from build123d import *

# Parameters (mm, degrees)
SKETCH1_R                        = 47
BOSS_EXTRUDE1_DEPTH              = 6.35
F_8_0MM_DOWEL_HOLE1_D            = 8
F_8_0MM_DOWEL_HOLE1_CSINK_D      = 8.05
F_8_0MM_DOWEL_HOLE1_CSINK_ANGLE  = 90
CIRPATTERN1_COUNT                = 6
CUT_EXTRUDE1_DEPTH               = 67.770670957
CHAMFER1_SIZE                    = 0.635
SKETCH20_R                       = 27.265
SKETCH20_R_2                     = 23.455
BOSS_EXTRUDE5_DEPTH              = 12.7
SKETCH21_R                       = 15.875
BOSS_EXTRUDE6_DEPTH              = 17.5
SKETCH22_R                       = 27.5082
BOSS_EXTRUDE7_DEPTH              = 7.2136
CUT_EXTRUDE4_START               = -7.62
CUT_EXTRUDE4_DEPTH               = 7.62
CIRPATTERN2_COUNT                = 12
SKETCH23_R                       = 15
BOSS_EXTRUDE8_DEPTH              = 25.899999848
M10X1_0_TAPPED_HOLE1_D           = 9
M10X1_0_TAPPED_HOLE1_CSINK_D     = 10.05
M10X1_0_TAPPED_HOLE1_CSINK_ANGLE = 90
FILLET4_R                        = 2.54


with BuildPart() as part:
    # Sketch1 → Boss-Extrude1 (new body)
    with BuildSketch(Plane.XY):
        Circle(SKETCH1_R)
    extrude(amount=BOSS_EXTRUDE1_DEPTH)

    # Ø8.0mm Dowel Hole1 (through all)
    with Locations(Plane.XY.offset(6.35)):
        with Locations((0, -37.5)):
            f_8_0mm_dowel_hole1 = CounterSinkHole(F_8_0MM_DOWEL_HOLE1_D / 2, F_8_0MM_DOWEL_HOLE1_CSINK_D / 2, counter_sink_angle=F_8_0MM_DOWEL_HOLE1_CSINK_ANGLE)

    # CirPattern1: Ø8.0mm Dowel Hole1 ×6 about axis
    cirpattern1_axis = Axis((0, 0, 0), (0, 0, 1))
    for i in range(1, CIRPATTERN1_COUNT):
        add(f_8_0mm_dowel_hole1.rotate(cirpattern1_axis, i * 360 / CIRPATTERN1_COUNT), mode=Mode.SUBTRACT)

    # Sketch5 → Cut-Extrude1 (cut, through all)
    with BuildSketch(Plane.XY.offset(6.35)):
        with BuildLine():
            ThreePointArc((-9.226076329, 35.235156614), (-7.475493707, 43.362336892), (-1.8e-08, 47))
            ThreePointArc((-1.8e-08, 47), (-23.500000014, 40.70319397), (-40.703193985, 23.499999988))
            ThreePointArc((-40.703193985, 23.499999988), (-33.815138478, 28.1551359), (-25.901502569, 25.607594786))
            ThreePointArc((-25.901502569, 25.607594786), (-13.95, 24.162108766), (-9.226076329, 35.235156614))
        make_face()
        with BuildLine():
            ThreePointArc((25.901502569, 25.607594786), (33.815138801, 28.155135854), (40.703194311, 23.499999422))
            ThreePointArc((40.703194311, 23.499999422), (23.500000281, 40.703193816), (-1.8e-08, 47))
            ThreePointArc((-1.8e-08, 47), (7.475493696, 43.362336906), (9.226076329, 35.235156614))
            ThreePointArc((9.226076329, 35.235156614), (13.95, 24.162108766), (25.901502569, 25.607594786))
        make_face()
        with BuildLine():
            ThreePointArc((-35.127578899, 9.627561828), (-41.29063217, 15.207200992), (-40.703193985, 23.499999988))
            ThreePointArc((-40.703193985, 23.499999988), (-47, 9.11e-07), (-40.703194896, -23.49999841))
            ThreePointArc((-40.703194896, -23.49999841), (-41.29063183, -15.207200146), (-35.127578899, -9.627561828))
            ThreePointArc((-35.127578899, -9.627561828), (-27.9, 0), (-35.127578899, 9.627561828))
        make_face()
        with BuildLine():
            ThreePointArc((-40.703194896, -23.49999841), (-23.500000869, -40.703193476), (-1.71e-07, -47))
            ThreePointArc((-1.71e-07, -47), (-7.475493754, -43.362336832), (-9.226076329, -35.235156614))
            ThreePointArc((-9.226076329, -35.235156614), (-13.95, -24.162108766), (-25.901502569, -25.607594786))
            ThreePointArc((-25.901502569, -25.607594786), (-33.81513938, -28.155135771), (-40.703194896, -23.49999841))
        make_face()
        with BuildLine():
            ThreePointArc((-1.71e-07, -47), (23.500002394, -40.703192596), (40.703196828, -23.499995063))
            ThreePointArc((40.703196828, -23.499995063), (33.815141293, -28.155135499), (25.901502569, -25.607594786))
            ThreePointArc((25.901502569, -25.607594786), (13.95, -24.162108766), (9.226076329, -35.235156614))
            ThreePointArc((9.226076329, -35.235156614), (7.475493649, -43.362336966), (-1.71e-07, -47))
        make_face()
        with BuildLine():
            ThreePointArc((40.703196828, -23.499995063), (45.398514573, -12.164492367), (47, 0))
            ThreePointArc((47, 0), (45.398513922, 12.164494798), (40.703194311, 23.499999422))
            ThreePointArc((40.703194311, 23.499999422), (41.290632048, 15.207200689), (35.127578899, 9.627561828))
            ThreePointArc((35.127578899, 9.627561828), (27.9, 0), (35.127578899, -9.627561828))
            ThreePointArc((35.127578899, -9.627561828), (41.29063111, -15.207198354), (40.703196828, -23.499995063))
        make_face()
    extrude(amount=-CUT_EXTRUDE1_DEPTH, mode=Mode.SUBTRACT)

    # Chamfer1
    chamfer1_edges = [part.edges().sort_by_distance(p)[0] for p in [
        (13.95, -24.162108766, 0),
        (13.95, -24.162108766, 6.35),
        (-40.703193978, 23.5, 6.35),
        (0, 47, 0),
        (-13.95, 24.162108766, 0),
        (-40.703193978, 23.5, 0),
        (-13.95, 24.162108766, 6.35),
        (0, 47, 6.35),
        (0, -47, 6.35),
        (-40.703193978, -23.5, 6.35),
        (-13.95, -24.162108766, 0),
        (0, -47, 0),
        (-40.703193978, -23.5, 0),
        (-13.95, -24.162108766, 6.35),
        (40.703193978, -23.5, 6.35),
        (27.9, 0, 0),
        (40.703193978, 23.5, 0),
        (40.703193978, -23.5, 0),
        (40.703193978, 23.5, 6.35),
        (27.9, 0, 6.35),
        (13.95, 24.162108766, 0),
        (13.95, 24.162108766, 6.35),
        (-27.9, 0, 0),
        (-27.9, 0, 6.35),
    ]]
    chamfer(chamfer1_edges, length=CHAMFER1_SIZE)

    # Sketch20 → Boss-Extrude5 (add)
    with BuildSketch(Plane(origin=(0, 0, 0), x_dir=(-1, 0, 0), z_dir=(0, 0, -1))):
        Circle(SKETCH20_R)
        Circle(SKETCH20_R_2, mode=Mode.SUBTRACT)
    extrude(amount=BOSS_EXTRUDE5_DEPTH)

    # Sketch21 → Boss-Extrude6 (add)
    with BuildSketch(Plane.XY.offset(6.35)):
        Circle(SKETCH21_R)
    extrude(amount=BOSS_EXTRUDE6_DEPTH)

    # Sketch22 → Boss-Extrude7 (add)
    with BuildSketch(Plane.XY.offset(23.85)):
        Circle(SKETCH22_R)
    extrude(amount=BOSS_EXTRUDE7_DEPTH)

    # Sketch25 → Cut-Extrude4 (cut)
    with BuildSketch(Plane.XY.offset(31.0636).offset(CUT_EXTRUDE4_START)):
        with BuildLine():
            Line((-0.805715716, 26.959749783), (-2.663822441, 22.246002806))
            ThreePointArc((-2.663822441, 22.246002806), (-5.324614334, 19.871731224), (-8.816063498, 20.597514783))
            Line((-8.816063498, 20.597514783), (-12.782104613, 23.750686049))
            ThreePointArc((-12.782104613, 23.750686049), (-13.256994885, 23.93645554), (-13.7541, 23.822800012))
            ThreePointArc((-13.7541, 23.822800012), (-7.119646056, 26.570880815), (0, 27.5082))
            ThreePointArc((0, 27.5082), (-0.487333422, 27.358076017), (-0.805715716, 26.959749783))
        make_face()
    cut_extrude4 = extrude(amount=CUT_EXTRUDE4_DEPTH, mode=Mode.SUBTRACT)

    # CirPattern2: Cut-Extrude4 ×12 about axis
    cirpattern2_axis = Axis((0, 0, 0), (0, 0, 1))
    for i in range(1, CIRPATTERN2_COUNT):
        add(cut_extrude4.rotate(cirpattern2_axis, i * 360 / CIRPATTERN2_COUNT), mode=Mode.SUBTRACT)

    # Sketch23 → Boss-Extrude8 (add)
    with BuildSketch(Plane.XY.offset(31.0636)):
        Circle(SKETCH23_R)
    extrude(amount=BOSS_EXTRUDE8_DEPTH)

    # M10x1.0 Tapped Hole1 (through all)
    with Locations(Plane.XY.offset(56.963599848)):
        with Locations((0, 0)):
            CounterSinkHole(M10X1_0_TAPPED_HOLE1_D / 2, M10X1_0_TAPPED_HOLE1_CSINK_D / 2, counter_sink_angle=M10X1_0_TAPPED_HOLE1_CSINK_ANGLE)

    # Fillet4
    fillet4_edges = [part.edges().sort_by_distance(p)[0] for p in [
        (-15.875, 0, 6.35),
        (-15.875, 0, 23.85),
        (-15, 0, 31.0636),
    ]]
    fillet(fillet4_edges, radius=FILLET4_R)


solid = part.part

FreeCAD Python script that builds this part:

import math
import FreeCAD as App
import Part
import Sketcher

V = App.Vector
Q = App.Units.Quantity


def edges_at(feature, points):
    """Names of the edges that pass closest to the given points."""
    edges = feature.Shape.Edges
    near = lambda p: min(range(len(edges)), key=lambda i: edges[i].distToShape(Part.Vertex(*p))[0])
    return sorted({f"Edge{near(p) + 1}" for p in points})

doc = App.newDocument("Part")
body = doc.addObject("PartDesign::Body", "Body")

# Sketch on XY plane
sketch1 = body.newObject("Sketcher::SketchObject", "Sketch")
sketch1.AttachmentSupport = (doc.getObject("XY_Plane"), [""])
sketch1.MapMode = "FlatFace"
sketch1.addGeometry(Part.Circle(V(0, 0, 0), V(0, 0, 1), 47), False)
sketch1.addConstraint([
    Sketcher.Constraint("Coincident", 0, 3, -1, 1),
    Sketcher.Constraint("Diameter", 0, Q("94 mm")),
])
pad1 = body.newObject("PartDesign::Pad", "Pad")
pad1.Profile = sketch1
pad1.Length = Q("0.25 in")

# Sketch on XY plane
sketch2 = body.newObject("Sketcher::SketchObject", "Sketch001")
sketch2.AttachmentSupport = (doc.getObject("XY_Plane"), [""])
sketch2.MapMode = "FlatFace"
sketch2.AttachmentOffset = App.Placement(V(0, 0, 0.25 * 25.4), App.Rotation())
sketch2.addGeometry(Part.Circle(V(0, -37.5, 0), V(0, 0, 1), 4), False)
sketch2.addConstraint([
    Sketcher.Constraint("PointOnObject", 0, 3, -2),
    Sketcher.Constraint("Diameter", 0, Q("8 mm")),
    Sketcher.Constraint("DistanceY", 0, 3, -1, 1, Q("37.5 mm")),
])
doc.recompute()
hole = body.newObject("PartDesign::Hole", "Hole")
hole.Profile = sketch2
hole.ThreadType = "None"
hole.Diameter = 8
hole.DepthType = "ThroughAll"
hole.HoleCutType = "Countersink"
hole.HoleCutDiameter = 8.05
hole.HoleCutCountersinkAngle = 90
doc.recompute()

polarpattern = body.newObject("PartDesign::PolarPattern", "PolarPattern")
polarpattern.Originals = [hole]
polarpattern.Axis = (doc.getObject("Z_Axis"), [""])
polarpattern.Angle = 360
polarpattern.Occurrences = 6
body.Tip = polarpattern

# Sketch on XY plane
sketch3 = body.newObject("Sketcher::SketchObject", "Sketch002")
sketch3.AttachmentSupport = (doc.getObject("XY_Plane"), [""])
sketch3.MapMode = "FlatFace"
sketch3.AttachmentOffset = App.Placement(V(0, 0, 0.25 * 25.4), App.Rotation())
sketch3.addGeometry([
    Part.ArcOfCircle(Part.Circle(V(0, 38, 0), V(0, 0, 1), 10), math.radians(90), math.radians(194)),  # 0
    Part.ArcOfCircle(Part.Circle(V(0, 0, 0), V(0, 0, 1), 47), math.radians(90), math.radians(150)),  # 1
    Part.ArcOfCircle(Part.Circle(V(-32, 19, 0), V(0, 0, 1), 10), math.radians(46), math.radians(150)),  # 2
    Part.ArcOfCircle(Part.Circle(V(-19, 33, 0), V(0, 0, 1), 10), math.radians(-134), math.radians(14)),  # 3
    Part.ArcOfCircle(Part.Circle(V(32, 19, 0), V(0, 0, 1), 10), math.radians(30), math.radians(134)),  # 4
    Part.ArcOfCircle(Part.Circle(V(0, 0, 0), V(0, 0, 1), 47), math.radians(30), math.radians(90)),  # 5
    Part.ArcOfCircle(Part.Circle(V(0, 38, 0), V(0, 0, 1), 10), math.radians(-14), math.radians(90)),  # 6
    Part.ArcOfCircle(Part.Circle(V(19, 33, 0), V(0, 0, 1), 10), math.radians(166), math.radians(314)),  # 7
    Part.ArcOfCircle(Part.Circle(V(-32, 19, 0), V(0, 0, 1), 10), math.radians(150), math.radians(254)),  # 8
    Part.ArcOfCircle(Part.Circle(V(0, 0, 0), V(0, 0, 1), 47), math.radians(150), math.radians(210)),  # 9
    Part.ArcOfCircle(Part.Circle(V(-32, -19, 0), V(0, 0, 1), 10), math.radians(106), math.radians(210)),  # 10
    Part.ArcOfCircle(Part.Circle(V(-38, 0, 0), V(0, 0, 1), 10), math.radians(-74), math.radians(74)),  # 11
    Part.ArcOfCircle(Part.Circle(V(0, 0, 0), V(0, 0, 1), 47), math.radians(-150), math.radians(-90)),  # 12
    Part.ArcOfCircle(Part.Circle(V(0, -38, 0), V(0, 0, 1), 10), math.radians(166), math.radians(270)),  # 13
    Part.ArcOfCircle(Part.Circle(V(-19, -33, 0), V(0, 0, 1), 10), math.radians(-14), math.radians(134)),  # 14
    Part.ArcOfCircle(Part.Circle(V(-32, -19, 0), V(0, 0, 1), 10), math.radians(-150), math.radians(-46)),  # 15
    Part.ArcOfCircle(Part.Circle(V(0, 0, 0), V(0, 0, 1), 47), math.radians(-90), math.radians(-30)),  # 16
    Part.ArcOfCircle(Part.Circle(V(32, -19, 0), V(0, 0, 1), 10), math.radians(-134), math.radians(-30)),  # 17
    Part.ArcOfCircle(Part.Circle(V(19, -33, 0), V(0, 0, 1), 10), math.radians(46), math.radians(194)),  # 18
    Part.ArcOfCircle(Part.Circle(V(0, -38, 0), V(0, 0, 1), 9), math.radians(-90), math.radians(14)),  # 19
    Part.ArcOfCircle(Part.Circle(V(0, 0, 0), V(0, 0, 1), 47), math.radians(-30), math.radians(0)),  # 20
    Part.ArcOfCircle(Part.Circle(V(0, 0, 0), V(0, 0, 1), 47), math.radians(0), math.radians(30)),  # 21
    Part.ArcOfCircle(Part.Circle(V(32, 19, 0), V(0, 0, 1), 10), math.radians(-74), math.radians(30)),  # 22
    Part.ArcOfCircle(Part.Circle(V(38, 0, 0), V(0, 0, 1), 10), math.radians(106), math.radians(254)),  # 23
    Part.ArcOfCircle(Part.Circle(V(32, -19, 0), V(0, 0, 1), 10), math.radians(-30), math.radians(74)),  # 24
], False)
sketch3.addConstraint([
    Sketcher.Constraint("Tangent", 0, 1, 1, 1),
    Sketcher.Constraint("Tangent", 1, 2, 2, 2),
    Sketcher.Constraint("Tangent", 2, 1, 3, 1),
    Sketcher.Constraint("Tangent", 3, 2, 0, 2),
    Sketcher.Constraint("Tangent", 4, 1, 5, 1),
    Sketcher.Constraint("Tangent", 5, 2, 6, 2),
    Sketcher.Constraint("Tangent", 6, 1, 7, 1),
    Sketcher.Constraint("Tangent", 7, 2, 4, 2),
    Sketcher.Constraint("Tangent", 8, 1, 9, 1),
    Sketcher.Constraint("Tangent", 9, 2, 10, 2),
    Sketcher.Constraint("Tangent", 10, 1, 11, 1),
    Sketcher.Constraint("Tangent", 11, 2, 8, 2),
    Sketcher.Constraint("Tangent", 12, 2, 13, 2),
    Sketcher.Constraint("Tangent", 13, 1, 14, 1),
    Sketcher.Constraint("Tangent", 14, 2, 15, 2),
    Sketcher.Constraint("Tangent", 15, 1, 12, 1),
    Sketcher.Constraint("Tangent", 16, 2, 17, 2),
    Sketcher.Constraint("Tangent", 17, 1, 18, 1),
    Sketcher.Constraint("Tangent", 18, 2, 19, 2),
    Sketcher.Constraint("Tangent", 19, 1, 16, 1),
    Sketcher.Constraint("Tangent", 20, 2, 21, 1),
    Sketcher.Constraint("Tangent", 21, 2, 22, 2),
    Sketcher.Constraint("Tangent", 22, 1, 23, 1),
    Sketcher.Constraint("Tangent", 23, 2, 24, 2),
    Sketcher.Constraint("Tangent", 24, 1, 20, 1),
    Sketcher.Constraint("Coincident", 1, 3, -1, 1),
    Sketcher.Constraint("Coincident", 5, 3, -1, 1),
    Sketcher.Constraint("Coincident", 9, 3, -1, 1),
    Sketcher.Constraint("Coincident", 12, 3, -1, 1),
    Sketcher.Constraint("Coincident", 16, 3, -1, 1),
    Sketcher.Constraint("Coincident", 20, 3, -1, 1),
    Sketcher.Constraint("Coincident", 6, 3, 0, 3),
    Sketcher.Constraint("Coincident", 8, 3, 2, 3),
    Sketcher.Constraint("Coincident", 15, 3, 10, 3),
    Sketcher.Constraint("Coincident", 19, 3, 13, 3),
    Sketcher.Constraint("Coincident", 22, 3, 4, 3),
    Sketcher.Constraint("Coincident", 24, 3, 17, 3),
    Sketcher.Constraint("Coincident", 21, 2, 4, 1),
    Sketcher.Constraint("Equal", 0, 2),
    Sketcher.Constraint("Equal", 2, 4),
    Sketcher.Constraint("Equal", 1, 5),
    Sketcher.Constraint("Equal", 3, 7),
    Sketcher.Constraint("Equal", 6, 8),
    Sketcher.Constraint("Equal", 8, 10),
    Sketcher.Constraint("Equal", 7, 11),
    Sketcher.Constraint("Equal", 9, 12),
    Sketcher.Constraint("Equal", 10, 13),
    Sketcher.Constraint("Equal", 11, 14),
    Sketcher.Constraint("Equal", 12, 16),
    Sketcher.Constraint("Equal", 15, 17),
    Sketcher.Constraint("Equal", 14, 18),
    Sketcher.Constraint("Equal", 18, 23),
    Sketcher.Constraint("Symmetric", 7, 3, 14, 3, -1, 1),
    Sketcher.Constraint("Symmetric", 3, 3, 7, 3, -2),
    Sketcher.Constraint("PointOnObject", 23, 3, -1),
    Sketcher.Constraint("PointOnObject", 20, 2, -1),
    Sketcher.Constraint("Radius", 0, Q("9.5 mm")),
    Sketcher.Constraint("Radius", 1, Q("47 mm")),
    Sketcher.Constraint("Radius", 3, Q("10.02603 mm")),
    Sketcher.Constraint("DistanceX", 10, 1, 14, 3, Q("0.6364002 in")),
])
pocket1 = body.newObject("PartDesign::Pocket", "Pocket")
pocket1.Profile = sketch3
pocket1.Type = "ThroughAll"
doc.recompute()

chamfer = body.newObject("PartDesign::Chamfer", "Chamfer")
chamfer.Base = (pocket1, edges_at(pocket1, [
    (13.95, -24.162, 0),
    (13.95, -24.162, 6.35),
    (-41.291, 15.207, 6.35),
    (7.475, 43.362, 0),
    (-13.95, 24.162, 0),
    (-33.815, 28.155, 0),
    (-13.95, 24.162, 6.35),
    (-7.475, 43.362, 6.35),
    (7.475, -43.362, 6.35),
    (-33.815, -28.155, 6.35),
    (-13.95, -24.162, 0),
    (7.475, -43.362, 0),
    (-33.815, -28.155, 0),
    (-13.95, -24.162, 6.35),
    (33.815, -28.155, 6.35),
    (27.9, 0, 0),
    (33.815, 28.155, 0),
    (33.815, -28.155, 0),
    (33.815, 28.155, 6.35),
    (27.9, 0, 6.35),
    (13.95, 24.162, 0),
    (13.95, 24.162, 6.35),
    (-27.9, 0, 0),
    (-27.9, 0, 6.35),
]))
chamfer.Size = Q("0.025 in")

# Sketch on XY plane
sketch4 = body.newObject("Sketcher::SketchObject", "Sketch003")
sketch4.AttachmentSupport = (doc.getObject("XY_Plane"), [""])
sketch4.MapMode = "FlatFace"
sketch4.addGeometry([
    Part.Circle(V(0, 0, 0), V(0, 0, 1), 27),
    Part.Circle(V(0, 0, 0), V(0, 0, 1), 23),
], False)
sketch4.addConstraint([
    Sketcher.Constraint("Coincident", 0, 3, -1, 1),
    Sketcher.Constraint("Coincident", 1, 3, -1, 1),
    Sketcher.Constraint("Diameter", 0, Q("54.53 mm")),
    Sketcher.Constraint("Diameter", 1, Q("46.91 mm")),
])
pad2 = body.newObject("PartDesign::Pad", "Pad001")
pad2.Profile = sketch4
pad2.Length = Q("0.5 in")
pad2.Reversed = True

# Sketch on XY plane
sketch5 = body.newObject("Sketcher::SketchObject", "Sketch004")
sketch5.AttachmentSupport = (doc.getObject("XY_Plane"), [""])
sketch5.MapMode = "FlatFace"
sketch5.AttachmentOffset = App.Placement(V(0, 0, 0.25 * 25.4), App.Rotation())
sketch5.addGeometry(Part.Circle(V(0, 0, 0), V(0, 0, 1), 16), False)
sketch5.addConstraint([
    Sketcher.Constraint("Coincident", 0, 3, -1, 1),
    Sketcher.Constraint("Diameter", 0, Q("1.25 in")),
])
pad3 = body.newObject("PartDesign::Pad", "Pad002")
pad3.Profile = sketch5
pad3.Length = 17.5

# Sketch on XY plane
sketch6 = body.newObject("Sketcher::SketchObject", "Sketch005")
sketch6.AttachmentSupport = (doc.getObject("XY_Plane"), [""])
sketch6.MapMode = "FlatFace"
sketch6.AttachmentOffset = App.Placement(V(0, 0, 23.85), App.Rotation())
sketch6.addGeometry(Part.Circle(V(0, 0, 0), V(0, 0, 1), 28), False)
sketch6.addConstraint([
    Sketcher.Constraint("Coincident", 0, 3, -1, 1),
    Sketcher.Constraint("Diameter", 0, Q("2.166 in")),
])
pad4 = body.newObject("PartDesign::Pad", "Pad003")
pad4.Profile = sketch6
pad4.Length = Q("0.284 in")

# Sketch on XY plane
sketch7 = body.newObject("Sketcher::SketchObject", "Sketch006")
sketch7.AttachmentSupport = (doc.getObject("XY_Plane"), [""])
sketch7.MapMode = "FlatFace"
sketch7.AttachmentOffset = App.Placement(V(0, 0, 23.4436), App.Rotation())
sketch7.addGeometry([
    Part.LineSegment(V(-2.7, 22.2, 0), V(-0.8, 27, 0)),  # 0
    Part.ArcOfCircle(Part.Circle(V(0, 26.6, 0), V(0, 0, 1), 0.9), math.radians(90), math.radians(158)),  # 1
    Part.ArcOfCircle(Part.Circle(V(0, 0, 0), V(0, 0, 1), 27.5), math.radians(90), math.radians(120)),  # 2
    Part.ArcOfCircle(Part.Circle(V(-13.3, 23.1, 0), V(0, 0, 1), 0.9), math.radians(52), math.radians(120)),  # 3
    Part.LineSegment(V(-12.8, 23.8, 0), V(-8.8, 20.6, 0)),  # 4
    Part.ArcOfCircle(Part.Circle(V(-6.4, 23.7, 0), V(0, 0, 1), 4), math.radians(-128), math.radians(-22)),  # 5
], False)
sketch7.addConstraint([
    Sketcher.Constraint("Tangent", 0, 2, 1, 2),
    Sketcher.Constraint("Tangent", 1, 1, 2, 1),
    Sketcher.Constraint("Tangent", 2, 2, 3, 2),
    Sketcher.Constraint("Tangent", 3, 1, 4, 1),
    Sketcher.Constraint("Tangent", 4, 2, 5, 1),
    Sketcher.Constraint("Tangent", 5, 2, 0, 1),
    Sketcher.Constraint("Coincident", 2, 3, -1, 1),
    Sketcher.Constraint("Equal", 1, 3),
    Sketcher.Constraint("PointOnObject", 1, 3, -2),
    Sketcher.Constraint("Equal", 0, 4),
    Sketcher.Constraint("Radius", 2, Q("1.083 in")),
    Sketcher.Constraint("Radius", 5, Q("0.156 in")),
    Sketcher.Constraint("DistanceX", 2, 2, -1, 1, Q("0.5415 in")),
    Sketcher.Constraint("Radius", 1, Q("0.866054 mm")),
    Sketcher.Constraint("DistanceY", 4, 2, 5, 3, Q("3.101601 mm")),
])
pocket2 = body.newObject("PartDesign::Pocket", "Pocket001")
pocket2.Profile = sketch7
pocket2.Length = Q("0.3 in")
pocket2.Reversed = True
doc.recompute()

polarpattern2 = body.newObject("PartDesign::PolarPattern", "PolarPattern001")
polarpattern2.Originals = [pocket2]
polarpattern2.Axis = (doc.getObject("Z_Axis"), [""])
polarpattern2.Angle = 360
polarpattern2.Occurrences = 12
body.Tip = polarpattern2

# Sketch on XY plane
sketch8 = body.newObject("Sketcher::SketchObject", "Sketch007")
sketch8.AttachmentSupport = (doc.getObject("XY_Plane"), [""])
sketch8.MapMode = "FlatFace"
sketch8.AttachmentOffset = App.Placement(V(0, 0, 31.0636), App.Rotation())
sketch8.addGeometry(Part.Circle(V(0, 0, 0), V(0, 0, 1), 15), False)
sketch8.addConstraint([
    Sketcher.Constraint("Coincident", 0, 3, -1, 1),
    Sketcher.Constraint("Diameter", 0, Q("30 mm")),
])
pad5 = body.newObject("PartDesign::Pad", "Pad004")
pad5.Profile = sketch8
pad5.Length = 25.9

# Sketch on XY plane
sketch9 = body.newObject("Sketcher::SketchObject", "Sketch008")
sketch9.AttachmentSupport = (doc.getObject("XY_Plane"), [""])
sketch9.MapMode = "FlatFace"
sketch9.AttachmentOffset = App.Placement(V(0, 0, 56.9636), App.Rotation())
sketch9.addGeometry(Part.Circle(V(0, 0, 0), V(0, 0, 1), 4.5), False)
sketch9.addConstraint([
    Sketcher.Constraint("Coincident", 0, 3, -1, 1),
    Sketcher.Constraint("Diameter", 0, Q("9 mm")),
])
doc.recompute()
hole2 = body.newObject("PartDesign::Hole", "Hole001")
hole2.Profile = sketch9
hole2.ThreadType = "None"
hole2.Diameter = 9
hole2.DepthType = "ThroughAll"
hole2.HoleCutType = "Countersink"
hole2.HoleCutDiameter = 10.05
hole2.HoleCutCountersinkAngle = 90
doc.recompute()

fillet = body.newObject("PartDesign::Fillet", "Fillet")
fillet.Base = (hole2, edges_at(hole2, [(-15.875, 0, 6.35), (-15.875, 0, 23.85), (-15, 0, 31.064)]))
fillet.Radius = Q("0.1 in")

doc.recompute()
